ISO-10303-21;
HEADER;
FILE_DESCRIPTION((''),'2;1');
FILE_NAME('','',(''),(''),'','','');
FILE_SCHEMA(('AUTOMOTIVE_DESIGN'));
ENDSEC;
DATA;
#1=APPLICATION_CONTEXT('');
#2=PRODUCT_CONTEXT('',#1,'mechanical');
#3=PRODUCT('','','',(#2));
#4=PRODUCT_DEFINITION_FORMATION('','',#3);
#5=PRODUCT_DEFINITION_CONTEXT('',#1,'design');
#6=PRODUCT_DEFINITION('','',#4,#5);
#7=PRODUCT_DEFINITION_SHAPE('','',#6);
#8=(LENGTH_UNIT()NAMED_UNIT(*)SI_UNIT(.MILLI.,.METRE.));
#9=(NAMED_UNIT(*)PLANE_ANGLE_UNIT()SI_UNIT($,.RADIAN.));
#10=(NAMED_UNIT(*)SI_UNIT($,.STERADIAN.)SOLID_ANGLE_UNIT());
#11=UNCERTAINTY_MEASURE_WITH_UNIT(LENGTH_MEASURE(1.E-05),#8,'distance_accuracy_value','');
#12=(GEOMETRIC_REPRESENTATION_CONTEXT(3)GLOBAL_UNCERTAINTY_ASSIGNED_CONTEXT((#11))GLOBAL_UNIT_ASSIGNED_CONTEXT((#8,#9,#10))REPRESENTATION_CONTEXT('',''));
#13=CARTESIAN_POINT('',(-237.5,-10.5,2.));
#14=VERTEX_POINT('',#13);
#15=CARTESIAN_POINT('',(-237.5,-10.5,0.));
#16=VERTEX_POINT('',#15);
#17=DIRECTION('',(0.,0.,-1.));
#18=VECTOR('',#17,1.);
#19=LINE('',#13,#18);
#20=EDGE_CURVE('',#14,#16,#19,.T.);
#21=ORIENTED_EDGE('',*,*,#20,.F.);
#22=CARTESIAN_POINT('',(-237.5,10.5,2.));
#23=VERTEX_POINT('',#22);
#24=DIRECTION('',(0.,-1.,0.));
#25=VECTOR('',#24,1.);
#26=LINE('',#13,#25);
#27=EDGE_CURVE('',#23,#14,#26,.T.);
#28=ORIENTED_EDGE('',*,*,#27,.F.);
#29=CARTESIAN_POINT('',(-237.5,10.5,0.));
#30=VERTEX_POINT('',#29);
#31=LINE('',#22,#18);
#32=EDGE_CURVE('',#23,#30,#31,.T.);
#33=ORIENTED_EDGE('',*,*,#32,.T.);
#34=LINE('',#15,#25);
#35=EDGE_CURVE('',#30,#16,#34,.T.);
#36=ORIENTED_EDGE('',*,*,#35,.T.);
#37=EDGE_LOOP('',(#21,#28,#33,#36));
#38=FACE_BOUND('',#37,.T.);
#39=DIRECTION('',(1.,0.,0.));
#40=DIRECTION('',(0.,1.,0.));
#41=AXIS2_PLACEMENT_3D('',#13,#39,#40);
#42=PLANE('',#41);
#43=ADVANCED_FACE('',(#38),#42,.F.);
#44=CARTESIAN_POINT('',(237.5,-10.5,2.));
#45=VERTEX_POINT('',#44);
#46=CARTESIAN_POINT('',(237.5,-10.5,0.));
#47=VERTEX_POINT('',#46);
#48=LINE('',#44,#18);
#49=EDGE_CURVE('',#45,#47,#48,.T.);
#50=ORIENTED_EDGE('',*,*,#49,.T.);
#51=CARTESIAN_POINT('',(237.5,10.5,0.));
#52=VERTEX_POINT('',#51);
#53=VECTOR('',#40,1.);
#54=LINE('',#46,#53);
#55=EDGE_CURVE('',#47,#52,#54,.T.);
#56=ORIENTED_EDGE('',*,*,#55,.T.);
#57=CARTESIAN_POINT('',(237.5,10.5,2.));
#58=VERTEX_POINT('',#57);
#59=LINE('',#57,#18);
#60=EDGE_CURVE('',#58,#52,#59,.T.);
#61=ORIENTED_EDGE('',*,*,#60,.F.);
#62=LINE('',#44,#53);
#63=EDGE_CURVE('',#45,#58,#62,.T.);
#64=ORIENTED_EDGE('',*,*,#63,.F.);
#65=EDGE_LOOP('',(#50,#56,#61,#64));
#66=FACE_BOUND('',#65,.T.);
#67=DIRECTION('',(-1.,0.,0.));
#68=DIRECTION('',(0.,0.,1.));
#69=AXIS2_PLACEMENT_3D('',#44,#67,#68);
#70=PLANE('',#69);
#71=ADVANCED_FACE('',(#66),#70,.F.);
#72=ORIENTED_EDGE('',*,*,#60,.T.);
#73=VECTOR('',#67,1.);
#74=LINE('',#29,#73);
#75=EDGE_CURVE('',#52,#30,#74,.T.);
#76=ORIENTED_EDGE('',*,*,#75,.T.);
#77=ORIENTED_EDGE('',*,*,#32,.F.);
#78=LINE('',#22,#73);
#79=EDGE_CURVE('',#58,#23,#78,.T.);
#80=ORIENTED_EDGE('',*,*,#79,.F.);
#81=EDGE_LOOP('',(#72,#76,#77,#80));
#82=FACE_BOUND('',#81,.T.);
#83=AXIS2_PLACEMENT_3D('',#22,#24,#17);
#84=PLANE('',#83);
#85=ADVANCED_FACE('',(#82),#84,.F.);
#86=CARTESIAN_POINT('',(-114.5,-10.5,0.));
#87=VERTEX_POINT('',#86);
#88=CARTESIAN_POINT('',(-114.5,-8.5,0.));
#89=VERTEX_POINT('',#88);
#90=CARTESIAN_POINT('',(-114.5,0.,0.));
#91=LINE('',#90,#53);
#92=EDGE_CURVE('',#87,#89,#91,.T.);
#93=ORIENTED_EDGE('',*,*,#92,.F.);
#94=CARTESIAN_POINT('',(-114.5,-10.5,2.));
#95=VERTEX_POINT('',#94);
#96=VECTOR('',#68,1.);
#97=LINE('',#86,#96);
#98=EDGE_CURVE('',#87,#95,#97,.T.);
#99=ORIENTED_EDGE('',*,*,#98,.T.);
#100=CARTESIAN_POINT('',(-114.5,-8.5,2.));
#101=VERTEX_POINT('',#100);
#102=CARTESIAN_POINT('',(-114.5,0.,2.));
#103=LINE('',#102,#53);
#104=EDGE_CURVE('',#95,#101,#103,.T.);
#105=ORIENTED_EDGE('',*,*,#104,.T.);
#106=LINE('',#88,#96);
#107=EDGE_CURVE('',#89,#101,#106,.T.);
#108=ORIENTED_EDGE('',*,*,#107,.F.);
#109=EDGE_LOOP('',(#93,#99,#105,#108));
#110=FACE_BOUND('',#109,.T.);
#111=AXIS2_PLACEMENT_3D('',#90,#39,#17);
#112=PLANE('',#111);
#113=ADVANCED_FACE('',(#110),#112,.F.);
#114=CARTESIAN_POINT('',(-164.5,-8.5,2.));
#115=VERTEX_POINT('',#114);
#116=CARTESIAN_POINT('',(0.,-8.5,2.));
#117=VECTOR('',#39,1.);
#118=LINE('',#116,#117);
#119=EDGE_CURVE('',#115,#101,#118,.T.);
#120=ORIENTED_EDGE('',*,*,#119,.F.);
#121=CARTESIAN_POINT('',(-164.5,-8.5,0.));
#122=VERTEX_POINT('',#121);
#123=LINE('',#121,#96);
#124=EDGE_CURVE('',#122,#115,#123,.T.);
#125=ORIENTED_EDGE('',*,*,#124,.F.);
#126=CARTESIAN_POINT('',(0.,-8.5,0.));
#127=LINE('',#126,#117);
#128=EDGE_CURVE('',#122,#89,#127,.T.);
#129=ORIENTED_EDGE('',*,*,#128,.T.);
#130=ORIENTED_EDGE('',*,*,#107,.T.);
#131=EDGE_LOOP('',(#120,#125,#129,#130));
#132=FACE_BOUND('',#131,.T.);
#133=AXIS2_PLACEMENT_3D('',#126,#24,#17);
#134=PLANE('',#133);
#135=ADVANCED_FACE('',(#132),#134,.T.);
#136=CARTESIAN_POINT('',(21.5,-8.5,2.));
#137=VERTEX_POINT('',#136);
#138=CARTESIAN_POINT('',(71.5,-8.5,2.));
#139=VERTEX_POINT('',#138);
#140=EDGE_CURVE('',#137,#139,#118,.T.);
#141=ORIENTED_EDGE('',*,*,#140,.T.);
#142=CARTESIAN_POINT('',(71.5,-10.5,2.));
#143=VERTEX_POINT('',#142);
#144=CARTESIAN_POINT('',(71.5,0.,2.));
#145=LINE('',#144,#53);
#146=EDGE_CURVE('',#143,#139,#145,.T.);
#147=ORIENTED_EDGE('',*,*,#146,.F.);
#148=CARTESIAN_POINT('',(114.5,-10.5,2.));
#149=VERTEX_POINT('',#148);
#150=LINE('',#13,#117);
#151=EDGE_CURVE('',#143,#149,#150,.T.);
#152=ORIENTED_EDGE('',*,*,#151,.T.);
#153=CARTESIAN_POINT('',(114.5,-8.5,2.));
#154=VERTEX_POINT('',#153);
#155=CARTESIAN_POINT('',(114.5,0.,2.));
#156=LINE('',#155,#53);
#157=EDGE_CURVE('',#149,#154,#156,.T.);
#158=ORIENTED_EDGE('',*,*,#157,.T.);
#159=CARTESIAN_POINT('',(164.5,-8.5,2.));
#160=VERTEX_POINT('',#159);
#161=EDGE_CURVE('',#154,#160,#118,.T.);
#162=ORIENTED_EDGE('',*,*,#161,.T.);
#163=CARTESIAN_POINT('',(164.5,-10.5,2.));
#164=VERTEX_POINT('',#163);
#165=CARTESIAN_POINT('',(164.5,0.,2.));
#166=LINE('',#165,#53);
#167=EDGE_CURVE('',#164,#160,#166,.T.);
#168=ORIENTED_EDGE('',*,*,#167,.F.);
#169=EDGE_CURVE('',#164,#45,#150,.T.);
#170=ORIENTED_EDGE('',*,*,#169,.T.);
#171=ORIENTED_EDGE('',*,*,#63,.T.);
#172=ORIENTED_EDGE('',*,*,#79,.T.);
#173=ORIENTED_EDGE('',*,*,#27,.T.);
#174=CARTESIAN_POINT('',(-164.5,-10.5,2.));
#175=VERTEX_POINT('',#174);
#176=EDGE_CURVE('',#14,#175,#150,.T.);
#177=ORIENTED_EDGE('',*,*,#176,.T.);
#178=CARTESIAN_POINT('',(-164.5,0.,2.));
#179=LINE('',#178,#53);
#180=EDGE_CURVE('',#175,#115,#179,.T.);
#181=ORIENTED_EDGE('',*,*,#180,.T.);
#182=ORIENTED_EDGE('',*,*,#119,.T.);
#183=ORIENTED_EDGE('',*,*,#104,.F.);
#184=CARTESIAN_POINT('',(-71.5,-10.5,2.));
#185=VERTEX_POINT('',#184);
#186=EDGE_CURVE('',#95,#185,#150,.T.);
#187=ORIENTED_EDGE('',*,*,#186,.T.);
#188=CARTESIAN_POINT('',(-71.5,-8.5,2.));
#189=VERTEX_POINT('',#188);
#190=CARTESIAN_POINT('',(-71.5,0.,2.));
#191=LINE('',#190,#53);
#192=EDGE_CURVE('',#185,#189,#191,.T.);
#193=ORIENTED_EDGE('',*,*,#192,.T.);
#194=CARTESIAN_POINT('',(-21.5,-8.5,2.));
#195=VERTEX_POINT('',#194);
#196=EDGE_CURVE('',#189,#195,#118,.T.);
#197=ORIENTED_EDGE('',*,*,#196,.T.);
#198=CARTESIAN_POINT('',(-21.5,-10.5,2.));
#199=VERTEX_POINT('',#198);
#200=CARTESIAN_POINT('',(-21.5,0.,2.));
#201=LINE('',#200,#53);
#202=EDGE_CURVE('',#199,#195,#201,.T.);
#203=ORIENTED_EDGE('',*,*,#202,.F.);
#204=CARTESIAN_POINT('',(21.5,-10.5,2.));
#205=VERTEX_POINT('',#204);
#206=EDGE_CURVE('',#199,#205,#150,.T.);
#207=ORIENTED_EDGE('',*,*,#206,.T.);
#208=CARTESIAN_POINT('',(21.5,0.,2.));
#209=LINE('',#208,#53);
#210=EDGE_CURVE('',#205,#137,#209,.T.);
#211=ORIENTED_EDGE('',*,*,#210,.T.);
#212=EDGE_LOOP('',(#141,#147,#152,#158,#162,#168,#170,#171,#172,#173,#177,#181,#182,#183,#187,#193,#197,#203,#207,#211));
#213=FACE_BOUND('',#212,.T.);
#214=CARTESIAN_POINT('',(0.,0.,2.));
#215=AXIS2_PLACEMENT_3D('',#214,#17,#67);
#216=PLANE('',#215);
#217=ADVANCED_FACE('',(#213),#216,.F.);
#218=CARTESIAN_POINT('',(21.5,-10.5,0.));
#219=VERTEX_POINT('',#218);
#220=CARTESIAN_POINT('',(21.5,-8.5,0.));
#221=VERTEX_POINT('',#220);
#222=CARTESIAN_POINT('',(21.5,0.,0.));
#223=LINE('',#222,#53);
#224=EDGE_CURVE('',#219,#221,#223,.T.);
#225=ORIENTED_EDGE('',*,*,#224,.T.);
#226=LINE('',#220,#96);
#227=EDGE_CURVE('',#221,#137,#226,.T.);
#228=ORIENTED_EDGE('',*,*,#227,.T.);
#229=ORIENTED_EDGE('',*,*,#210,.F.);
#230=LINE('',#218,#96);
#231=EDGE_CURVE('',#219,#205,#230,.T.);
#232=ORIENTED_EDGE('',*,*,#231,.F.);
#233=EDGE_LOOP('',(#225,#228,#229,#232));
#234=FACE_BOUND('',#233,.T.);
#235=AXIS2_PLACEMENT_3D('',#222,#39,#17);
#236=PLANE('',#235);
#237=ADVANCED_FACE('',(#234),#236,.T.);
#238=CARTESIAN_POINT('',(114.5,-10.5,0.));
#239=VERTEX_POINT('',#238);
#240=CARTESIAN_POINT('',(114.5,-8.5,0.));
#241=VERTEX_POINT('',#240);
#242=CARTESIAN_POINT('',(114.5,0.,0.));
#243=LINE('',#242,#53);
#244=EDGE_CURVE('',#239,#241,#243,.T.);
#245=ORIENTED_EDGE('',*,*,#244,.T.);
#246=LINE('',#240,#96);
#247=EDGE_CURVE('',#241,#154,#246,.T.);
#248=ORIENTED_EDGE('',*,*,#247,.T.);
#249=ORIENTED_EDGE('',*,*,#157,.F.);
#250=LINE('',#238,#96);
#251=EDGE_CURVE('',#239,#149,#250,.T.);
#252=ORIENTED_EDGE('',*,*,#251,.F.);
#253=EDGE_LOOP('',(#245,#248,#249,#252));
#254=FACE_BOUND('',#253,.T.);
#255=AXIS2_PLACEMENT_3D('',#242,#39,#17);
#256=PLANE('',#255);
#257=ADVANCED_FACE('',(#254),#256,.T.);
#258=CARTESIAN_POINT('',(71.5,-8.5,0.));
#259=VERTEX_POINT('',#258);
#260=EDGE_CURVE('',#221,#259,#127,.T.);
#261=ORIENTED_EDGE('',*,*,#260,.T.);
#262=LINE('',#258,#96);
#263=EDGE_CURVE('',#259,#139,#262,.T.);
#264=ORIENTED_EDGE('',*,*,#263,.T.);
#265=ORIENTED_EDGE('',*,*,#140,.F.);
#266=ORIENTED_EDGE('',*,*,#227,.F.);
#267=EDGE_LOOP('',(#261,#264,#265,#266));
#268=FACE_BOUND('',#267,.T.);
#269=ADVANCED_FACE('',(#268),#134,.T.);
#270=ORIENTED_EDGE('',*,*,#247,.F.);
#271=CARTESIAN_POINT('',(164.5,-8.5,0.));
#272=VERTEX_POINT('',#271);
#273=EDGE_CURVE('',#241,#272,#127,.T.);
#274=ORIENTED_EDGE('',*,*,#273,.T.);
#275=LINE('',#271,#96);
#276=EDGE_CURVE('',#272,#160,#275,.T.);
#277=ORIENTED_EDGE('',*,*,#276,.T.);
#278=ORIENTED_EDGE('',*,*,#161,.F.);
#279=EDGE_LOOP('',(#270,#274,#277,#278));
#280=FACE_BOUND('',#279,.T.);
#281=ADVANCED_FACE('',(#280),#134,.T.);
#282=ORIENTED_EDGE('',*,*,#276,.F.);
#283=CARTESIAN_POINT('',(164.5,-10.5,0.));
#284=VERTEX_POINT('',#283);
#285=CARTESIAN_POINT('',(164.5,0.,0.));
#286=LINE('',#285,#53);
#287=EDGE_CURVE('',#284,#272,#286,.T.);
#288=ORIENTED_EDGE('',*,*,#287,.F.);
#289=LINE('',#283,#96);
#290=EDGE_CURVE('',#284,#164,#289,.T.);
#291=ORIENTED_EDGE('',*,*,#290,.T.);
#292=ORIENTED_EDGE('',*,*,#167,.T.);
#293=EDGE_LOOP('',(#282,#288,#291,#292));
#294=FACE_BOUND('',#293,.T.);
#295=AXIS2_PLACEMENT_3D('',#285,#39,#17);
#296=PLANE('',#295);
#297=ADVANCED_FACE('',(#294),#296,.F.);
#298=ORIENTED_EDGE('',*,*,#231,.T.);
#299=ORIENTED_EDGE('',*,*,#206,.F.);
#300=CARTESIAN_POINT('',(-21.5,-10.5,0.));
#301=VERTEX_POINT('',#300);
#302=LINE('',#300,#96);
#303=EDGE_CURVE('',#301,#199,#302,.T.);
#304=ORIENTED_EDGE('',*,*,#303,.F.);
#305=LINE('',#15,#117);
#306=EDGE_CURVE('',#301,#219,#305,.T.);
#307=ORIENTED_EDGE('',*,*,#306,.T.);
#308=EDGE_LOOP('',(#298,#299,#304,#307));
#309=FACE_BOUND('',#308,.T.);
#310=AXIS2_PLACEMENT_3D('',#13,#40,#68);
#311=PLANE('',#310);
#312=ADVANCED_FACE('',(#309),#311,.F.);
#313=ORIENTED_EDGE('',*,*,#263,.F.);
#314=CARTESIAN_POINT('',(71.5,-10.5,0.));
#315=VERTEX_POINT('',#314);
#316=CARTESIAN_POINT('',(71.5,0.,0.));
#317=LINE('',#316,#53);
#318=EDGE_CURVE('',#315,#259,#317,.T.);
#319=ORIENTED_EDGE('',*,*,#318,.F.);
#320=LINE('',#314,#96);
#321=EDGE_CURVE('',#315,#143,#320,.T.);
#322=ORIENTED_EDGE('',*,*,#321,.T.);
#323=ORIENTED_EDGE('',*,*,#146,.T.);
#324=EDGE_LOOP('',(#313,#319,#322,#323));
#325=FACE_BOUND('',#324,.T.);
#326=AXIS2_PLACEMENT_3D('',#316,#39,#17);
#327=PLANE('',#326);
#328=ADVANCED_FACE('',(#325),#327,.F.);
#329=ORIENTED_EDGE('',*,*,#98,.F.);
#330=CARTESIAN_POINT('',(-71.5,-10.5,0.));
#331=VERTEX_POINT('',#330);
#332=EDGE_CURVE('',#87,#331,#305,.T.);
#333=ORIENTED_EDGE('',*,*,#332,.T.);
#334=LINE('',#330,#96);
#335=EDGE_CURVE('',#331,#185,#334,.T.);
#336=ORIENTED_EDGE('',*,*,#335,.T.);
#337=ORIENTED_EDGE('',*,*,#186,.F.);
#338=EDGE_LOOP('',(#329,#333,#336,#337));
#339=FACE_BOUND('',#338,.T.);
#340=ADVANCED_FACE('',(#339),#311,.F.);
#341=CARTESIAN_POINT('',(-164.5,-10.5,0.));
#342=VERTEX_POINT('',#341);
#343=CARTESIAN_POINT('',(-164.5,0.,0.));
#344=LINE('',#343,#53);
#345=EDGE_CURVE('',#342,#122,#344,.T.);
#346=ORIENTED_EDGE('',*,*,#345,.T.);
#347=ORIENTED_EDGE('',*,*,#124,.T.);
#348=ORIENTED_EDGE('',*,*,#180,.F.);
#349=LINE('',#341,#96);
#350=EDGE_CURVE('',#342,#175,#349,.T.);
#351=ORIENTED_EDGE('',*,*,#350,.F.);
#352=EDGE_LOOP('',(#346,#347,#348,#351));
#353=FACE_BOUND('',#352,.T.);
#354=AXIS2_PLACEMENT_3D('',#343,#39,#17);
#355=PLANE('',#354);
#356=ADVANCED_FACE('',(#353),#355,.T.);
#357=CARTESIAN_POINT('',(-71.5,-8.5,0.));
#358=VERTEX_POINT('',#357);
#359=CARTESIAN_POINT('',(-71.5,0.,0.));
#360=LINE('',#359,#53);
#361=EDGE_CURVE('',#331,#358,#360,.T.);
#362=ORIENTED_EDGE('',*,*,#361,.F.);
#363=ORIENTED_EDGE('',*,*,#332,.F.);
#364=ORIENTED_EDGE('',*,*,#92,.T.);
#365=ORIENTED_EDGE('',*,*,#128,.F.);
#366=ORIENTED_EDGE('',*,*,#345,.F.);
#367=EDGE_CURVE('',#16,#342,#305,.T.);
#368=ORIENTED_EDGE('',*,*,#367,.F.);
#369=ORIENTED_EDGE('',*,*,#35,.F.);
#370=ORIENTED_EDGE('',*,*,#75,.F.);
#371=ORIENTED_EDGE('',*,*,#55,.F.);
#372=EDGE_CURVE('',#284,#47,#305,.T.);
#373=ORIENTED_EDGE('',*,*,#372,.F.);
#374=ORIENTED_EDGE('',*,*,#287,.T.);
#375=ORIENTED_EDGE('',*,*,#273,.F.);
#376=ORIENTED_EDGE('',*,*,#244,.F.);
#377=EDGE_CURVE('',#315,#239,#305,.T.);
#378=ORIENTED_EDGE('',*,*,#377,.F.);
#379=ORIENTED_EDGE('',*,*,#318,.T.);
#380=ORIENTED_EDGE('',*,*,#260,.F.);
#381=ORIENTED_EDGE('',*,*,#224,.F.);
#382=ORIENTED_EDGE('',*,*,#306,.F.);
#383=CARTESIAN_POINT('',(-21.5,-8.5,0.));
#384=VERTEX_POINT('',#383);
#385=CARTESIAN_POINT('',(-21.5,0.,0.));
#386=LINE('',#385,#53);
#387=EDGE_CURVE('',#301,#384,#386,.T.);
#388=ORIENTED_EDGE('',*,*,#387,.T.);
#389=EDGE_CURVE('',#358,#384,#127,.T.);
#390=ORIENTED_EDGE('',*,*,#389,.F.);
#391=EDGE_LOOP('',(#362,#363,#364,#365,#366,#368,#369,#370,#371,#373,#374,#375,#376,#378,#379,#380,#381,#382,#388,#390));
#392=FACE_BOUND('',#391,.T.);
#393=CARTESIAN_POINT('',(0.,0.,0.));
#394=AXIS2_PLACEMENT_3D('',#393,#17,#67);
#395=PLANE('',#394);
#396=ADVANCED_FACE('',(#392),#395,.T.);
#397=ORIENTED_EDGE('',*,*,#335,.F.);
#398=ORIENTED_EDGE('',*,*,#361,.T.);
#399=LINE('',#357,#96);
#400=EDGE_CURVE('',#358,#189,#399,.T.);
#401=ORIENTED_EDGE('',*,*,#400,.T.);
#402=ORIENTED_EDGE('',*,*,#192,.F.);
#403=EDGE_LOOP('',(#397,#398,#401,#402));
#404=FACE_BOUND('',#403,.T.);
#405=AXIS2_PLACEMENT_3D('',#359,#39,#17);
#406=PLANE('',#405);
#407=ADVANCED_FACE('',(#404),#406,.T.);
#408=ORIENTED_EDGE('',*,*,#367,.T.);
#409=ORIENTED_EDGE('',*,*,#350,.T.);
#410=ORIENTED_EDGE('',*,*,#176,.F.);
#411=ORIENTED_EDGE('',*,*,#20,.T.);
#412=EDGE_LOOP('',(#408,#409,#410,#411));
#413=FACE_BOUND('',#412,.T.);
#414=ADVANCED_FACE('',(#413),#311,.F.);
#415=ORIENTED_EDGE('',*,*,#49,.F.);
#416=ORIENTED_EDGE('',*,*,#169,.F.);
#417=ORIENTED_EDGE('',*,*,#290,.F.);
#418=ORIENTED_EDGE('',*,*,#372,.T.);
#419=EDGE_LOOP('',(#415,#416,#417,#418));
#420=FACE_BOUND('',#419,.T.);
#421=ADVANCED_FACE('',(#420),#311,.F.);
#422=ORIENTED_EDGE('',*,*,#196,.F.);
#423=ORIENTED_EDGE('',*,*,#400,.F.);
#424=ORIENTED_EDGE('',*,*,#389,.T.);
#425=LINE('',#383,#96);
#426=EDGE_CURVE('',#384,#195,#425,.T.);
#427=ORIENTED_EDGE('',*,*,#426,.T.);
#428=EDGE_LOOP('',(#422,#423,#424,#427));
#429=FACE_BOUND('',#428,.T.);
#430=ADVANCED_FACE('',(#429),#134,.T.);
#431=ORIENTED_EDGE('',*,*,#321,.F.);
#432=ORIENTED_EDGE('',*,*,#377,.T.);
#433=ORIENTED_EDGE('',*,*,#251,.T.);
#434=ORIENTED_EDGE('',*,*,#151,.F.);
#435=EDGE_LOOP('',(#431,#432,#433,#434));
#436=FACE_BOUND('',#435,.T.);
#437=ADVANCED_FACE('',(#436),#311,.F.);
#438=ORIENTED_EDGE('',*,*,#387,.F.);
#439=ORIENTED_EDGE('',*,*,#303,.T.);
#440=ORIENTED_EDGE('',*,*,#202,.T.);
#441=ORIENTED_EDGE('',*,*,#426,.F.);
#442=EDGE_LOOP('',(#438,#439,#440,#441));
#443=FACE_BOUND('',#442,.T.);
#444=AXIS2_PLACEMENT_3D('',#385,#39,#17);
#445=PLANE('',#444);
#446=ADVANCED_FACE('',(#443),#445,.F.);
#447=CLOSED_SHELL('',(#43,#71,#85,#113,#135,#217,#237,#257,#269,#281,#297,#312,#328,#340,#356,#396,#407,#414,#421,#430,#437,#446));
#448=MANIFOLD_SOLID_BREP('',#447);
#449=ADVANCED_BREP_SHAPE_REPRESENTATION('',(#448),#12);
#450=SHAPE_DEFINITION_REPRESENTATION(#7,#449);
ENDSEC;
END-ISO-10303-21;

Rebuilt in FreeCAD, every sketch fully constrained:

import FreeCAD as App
import Part
import Sketcher

V = App.Vector


def add_polygon(sketch, points):
    """Adds a closed chain of lines whose ends are joined by coincident constraints."""
    first, n = sketch.GeometryCount, len(points)
    for a, b in zip(points, points[1:] + points[:1]):
        sketch.addGeometry(Part.LineSegment(App.Vector(*a, 0), App.Vector(*b, 0)), False)
    for i in range(n):
        sketch.addConstraint(Sketcher.Constraint("Coincident", first + i, 2, first + (i + 1) % n, 1))

doc = App.newDocument("Part")
body = doc.addObject("PartDesign::Body", "Body")

# Sketch on XY plane
sketch1 = body.newObject("Sketcher::SketchObject", "Sketch")
sketch1.AttachmentSupport = (doc.getObject("XY_Plane"), [""])
sketch1.MapMode = "FlatFace"
add_polygon(sketch1, [(-238, 10), (-238, -10), (238, -10), (238, 10)])  # lines 0-3
sketch1.addConstraint(Sketcher.Constraint("Vertical", 0))
sketch1.addConstraint(Sketcher.Constraint("Horizontal", 1))
sketch1.addConstraint(Sketcher.Constraint("Vertical", 2))
sketch1.addConstraint(Sketcher.Constraint("Horizontal", 3))
sketch1.addConstraint(Sketcher.Constraint("Symmetric", 0, 2, 2, 2, -1, 1))
sketch1.addConstraint(Sketcher.Constraint("DistanceX", 1, 1, 1, 2, 475.0))
sketch1.addConstraint(Sketcher.Constraint("DistanceY", 0, 2, 0, 1, 21.0))
pad1 = body.newObject("PartDesign::Pad", "Pad")
pad1.Profile = sketch1
pad1.Length = 2

# Sketch on XY plane
sketch2 = body.newObject("Sketcher::SketchObject", "Sketch001")
sketch2.AttachmentSupport = (doc.getObject("XY_Plane"), [""])
sketch2.MapMode = "FlatFace"
sketch2.AttachmentOffset = App.Placement(V(0, 0, 2), App.Rotation())
add_polygon(sketch2, [(-71.5, -8.5), (-71.5, -10.5), (-21.5, -10.5), (-21.5, -8.5)])  # lines 0-3
add_polygon(sketch2, [(-164.5, -8.5), (-164.5, -10.5), (-114.5, -10.5), (-114.5, -8.5)])  # lines 4-7
add_polygon(sketch2, [(21.5, -8.5), (21.5, -10.5), (71.5, -10.5), (71.5, -8.5)])  # lines 8-11
add_polygon(sketch2, [(114.5, -8.5), (114.5, -10.5), (164.5, -10.5), (164.5, -8.5)])  # lines 12-15
sketch2.addConstraint(Sketcher.Constraint("Vertical", 0))
sketch2.addConstraint(Sketcher.Constraint("Horizontal", 1))
sketch2.addConstraint(Sketcher.Constraint("Vertical", 2))
sketch2.addConstraint(Sketcher.Constraint("Horizontal", 3))
sketch2.addConstraint(Sketcher.Constraint("Vertical", 4))
sketch2.addConstraint(Sketcher.Constraint("Horizontal", 5))
sketch2.addConstraint(Sketcher.Constraint("Vertical", 6))
sketch2.addConstraint(Sketcher.Constraint("Horizontal", 7))
sketch2.addConstraint(Sketcher.Constraint("Vertical", 8))
sketch2.addConstraint(Sketcher.Constraint("Horizontal", 9))
sketch2.addConstraint(Sketcher.Constraint("Vertical", 10))
sketch2.addConstraint(Sketcher.Constraint("Horizontal", 11))
sketch2.addConstraint(Sketcher.Constraint("Vertical", 12))
sketch2.addConstraint(Sketcher.Constraint("Horizontal", 13))
sketch2.addConstraint(Sketcher.Constraint("Vertical", 14))
sketch2.addConstraint(Sketcher.Constraint("Horizontal", 15))
sketch2.addConstraint(Sketcher.Constraint("Symmetric", 1, 2, 8, 2, -2))
sketch2.addConstraint(Sketcher.Constraint("Symmetric", 3, 2, 10, 2, -2))
sketch2.addConstraint(Sketcher.Constraint("Symmetric", 5, 2, 12, 2, -2))
sketch2.addConstraint(Sketcher.Constraint("Symmetric", 7, 2, 14, 2, -2))
sketch2.addConstraint(Sketcher.Constraint("Horizontal", 1, 2, 4, 2))
sketch2.addConstraint(Sketcher.Constraint("Horizontal", 3, 2, 6, 2))
sketch2.addConstraint(Sketcher.Constraint("Equal", 3, 5))
sketch2.addConstraint(Sketcher.Constraint("DistanceX", 1, 1, 1, 2, 50.0))
sketch2.addConstraint(Sketcher.Constraint("DistanceY", 0, 2, 0, 1, 2.0))
sketch2.addConstraint(Sketcher.Constraint("DistanceX", 4, 2, 0, 2, 93.0))
sketch2.addConstraint(Sketcher.Constraint("DistanceX", 1, 2, 8, 2, 43.0))
sketch2.addConstraint(Sketcher.Constraint("DistanceY", 0, 2, -1, 1, 10.5))
pocket1 = body.newObject("PartDesign::Pocket", "Pocket")
pocket1.Profile = sketch2
pocket1.Length = 2

doc.recompute()
